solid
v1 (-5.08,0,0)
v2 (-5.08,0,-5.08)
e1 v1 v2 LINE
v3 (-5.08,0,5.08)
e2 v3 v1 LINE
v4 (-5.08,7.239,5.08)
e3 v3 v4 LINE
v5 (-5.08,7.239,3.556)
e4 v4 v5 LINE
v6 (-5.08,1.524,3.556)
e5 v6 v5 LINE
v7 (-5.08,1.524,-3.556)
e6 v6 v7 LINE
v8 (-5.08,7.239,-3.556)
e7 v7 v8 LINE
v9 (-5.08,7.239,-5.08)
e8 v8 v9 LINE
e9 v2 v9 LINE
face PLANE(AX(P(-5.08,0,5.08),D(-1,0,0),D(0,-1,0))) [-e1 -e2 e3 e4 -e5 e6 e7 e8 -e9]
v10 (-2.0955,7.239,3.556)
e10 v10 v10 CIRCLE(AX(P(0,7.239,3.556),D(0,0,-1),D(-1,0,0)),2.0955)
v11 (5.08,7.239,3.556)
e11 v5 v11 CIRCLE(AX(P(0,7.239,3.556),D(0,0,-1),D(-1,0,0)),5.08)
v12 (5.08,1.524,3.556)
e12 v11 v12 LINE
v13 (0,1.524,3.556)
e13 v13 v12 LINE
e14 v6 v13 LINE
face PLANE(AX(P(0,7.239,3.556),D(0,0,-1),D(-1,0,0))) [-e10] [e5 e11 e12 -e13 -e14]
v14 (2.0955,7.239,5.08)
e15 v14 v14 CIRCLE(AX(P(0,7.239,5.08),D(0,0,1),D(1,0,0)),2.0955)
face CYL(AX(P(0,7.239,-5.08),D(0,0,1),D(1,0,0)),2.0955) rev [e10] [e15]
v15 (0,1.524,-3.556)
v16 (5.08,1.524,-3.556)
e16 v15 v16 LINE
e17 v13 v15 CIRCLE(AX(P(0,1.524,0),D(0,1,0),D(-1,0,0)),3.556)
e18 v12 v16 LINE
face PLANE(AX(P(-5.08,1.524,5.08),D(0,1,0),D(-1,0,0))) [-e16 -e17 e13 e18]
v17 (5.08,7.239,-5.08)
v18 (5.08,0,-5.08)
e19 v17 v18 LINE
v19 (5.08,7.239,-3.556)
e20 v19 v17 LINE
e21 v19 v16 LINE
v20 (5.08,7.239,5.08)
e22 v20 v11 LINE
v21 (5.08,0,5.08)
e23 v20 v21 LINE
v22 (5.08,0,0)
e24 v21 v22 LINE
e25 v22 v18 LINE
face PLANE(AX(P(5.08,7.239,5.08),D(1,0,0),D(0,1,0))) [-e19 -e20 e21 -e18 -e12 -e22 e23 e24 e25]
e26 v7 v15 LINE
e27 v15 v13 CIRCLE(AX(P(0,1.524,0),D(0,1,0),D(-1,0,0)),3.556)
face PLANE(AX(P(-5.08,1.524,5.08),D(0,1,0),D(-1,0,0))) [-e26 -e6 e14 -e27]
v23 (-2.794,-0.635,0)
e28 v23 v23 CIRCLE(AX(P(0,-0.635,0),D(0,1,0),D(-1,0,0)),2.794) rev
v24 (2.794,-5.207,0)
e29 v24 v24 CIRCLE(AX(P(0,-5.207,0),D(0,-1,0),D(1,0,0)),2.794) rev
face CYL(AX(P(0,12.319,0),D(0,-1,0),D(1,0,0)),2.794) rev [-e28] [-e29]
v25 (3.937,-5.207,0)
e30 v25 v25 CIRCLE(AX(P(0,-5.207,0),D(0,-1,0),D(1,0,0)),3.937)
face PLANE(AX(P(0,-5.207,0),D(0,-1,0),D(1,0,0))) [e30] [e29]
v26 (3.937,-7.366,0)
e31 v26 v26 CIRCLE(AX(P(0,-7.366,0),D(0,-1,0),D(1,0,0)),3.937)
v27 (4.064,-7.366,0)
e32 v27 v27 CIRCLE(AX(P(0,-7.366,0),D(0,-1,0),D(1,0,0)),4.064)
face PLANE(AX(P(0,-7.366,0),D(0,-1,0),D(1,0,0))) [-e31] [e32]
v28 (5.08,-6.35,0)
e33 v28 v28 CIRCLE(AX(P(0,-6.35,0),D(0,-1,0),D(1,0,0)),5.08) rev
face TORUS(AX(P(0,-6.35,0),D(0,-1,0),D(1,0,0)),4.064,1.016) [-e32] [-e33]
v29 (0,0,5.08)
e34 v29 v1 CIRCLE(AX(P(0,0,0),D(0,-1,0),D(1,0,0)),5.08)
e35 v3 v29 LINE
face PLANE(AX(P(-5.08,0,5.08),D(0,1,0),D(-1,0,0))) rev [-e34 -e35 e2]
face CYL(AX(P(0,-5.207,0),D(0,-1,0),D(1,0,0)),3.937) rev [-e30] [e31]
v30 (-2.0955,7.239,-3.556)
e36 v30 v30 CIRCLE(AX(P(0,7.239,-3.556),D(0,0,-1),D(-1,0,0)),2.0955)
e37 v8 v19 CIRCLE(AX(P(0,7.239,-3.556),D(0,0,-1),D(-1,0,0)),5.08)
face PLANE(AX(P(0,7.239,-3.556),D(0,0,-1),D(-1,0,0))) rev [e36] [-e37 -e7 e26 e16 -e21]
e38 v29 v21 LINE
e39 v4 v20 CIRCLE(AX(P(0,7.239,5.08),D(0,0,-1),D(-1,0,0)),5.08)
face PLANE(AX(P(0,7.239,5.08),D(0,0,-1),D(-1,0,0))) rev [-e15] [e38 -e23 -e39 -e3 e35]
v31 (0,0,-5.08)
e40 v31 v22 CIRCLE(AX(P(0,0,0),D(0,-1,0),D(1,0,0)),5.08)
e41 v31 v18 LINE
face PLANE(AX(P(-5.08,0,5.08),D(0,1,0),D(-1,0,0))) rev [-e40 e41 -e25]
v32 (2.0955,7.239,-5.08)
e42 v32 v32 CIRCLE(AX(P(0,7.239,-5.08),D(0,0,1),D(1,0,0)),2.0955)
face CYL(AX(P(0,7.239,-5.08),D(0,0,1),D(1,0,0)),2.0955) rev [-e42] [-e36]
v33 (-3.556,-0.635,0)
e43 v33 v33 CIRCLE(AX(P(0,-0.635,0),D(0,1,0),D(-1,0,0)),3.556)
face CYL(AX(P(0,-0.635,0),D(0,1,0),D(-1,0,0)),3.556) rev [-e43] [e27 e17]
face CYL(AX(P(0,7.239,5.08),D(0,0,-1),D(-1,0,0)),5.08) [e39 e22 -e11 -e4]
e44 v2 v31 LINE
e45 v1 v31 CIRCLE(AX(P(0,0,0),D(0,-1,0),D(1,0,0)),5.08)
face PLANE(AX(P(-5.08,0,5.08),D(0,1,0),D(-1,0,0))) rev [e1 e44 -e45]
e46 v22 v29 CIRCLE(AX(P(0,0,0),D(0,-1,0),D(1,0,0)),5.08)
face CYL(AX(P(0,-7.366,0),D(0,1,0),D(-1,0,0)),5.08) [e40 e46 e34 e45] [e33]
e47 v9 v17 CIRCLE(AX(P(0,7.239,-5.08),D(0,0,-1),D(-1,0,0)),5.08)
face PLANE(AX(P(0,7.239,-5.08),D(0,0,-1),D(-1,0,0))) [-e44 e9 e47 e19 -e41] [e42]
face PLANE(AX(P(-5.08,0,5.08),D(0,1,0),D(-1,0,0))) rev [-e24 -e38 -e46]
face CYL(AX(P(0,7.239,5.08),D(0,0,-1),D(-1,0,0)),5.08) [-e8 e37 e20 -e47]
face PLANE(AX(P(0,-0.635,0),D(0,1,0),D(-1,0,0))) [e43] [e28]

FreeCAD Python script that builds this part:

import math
import FreeCAD as App
import Part
import Sketcher
Q = App.Units.Quantity


def edges_at(feature, points):
    """Names of the edges that pass closest to the given points."""
    edges = feature.Shape.Edges
    near = lambda p: min(range(len(edges)), key=lambda i: edges[i].distToShape(Part.Vertex(*p))[0])
    return sorted({f"Edge{near(p) + 1}" for p in points})


def faces_at(feature, points):
    """Names of the faces that lie closest to the given points."""
    faces = feature.Shape.Faces
    near = lambda p: min(range(len(faces)), key=lambda i: faces[i].distToShape(Part.Vertex(*p))[0])
    return sorted({f"Face{near(p) + 1}" for p in points})

doc = App.newDocument("Part")
body = doc.addObject("PartDesign::Body", "Body")

sketch1 = body.newObject("Sketcher::SketchObject", "Sketch")
sketch1.AttachmentSupport = (doc.getObject("XY_Plane"), [""])
sketch1.MapMode = "FlatFace"
sketch1.addGeometry([
    Part.LineSegment(App.Vector(-5, 0, 0), App.Vector(5, 0, 0)),
    Part.LineSegment(App.Vector(5, 0, 0), App.Vector(5, 7, 0)),
    Part.ArcOfCircle(Part.Circle(App.Vector(0, 7, 0), App.Vector(0, 0, 1), 5), math.radians(0), math.radians(180)),
    Part.LineSegment(App.Vector(-5, 7, 0), App.Vector(-5, 0, 0)),
], False)
sketch1.addConstraint([
    Sketcher.Constraint("Coincident", 0, 2, 1, 1),
    Sketcher.Constraint("Tangent", 1, 2, 2, 1),
    Sketcher.Constraint("Tangent", 2, 2, 3, 1),
    Sketcher.Constraint("Coincident", 3, 2, 0, 1),
    Sketcher.Constraint("Horizontal", 0),
    Sketcher.Constraint("Vertical", 1),
    Sketcher.Constraint("Vertical", 3),
    Sketcher.Constraint("Symmetric", 0, 2, 3, 2, -1, 1),
    Sketcher.Constraint("Radius", 2, Q("0.2 in")),
    Sketcher.Constraint("DistanceY", 1, 1, 1, 2, Q("0.285 in")),
])
pad1 = body.newObject("PartDesign::Pad", "Pad")
pad1.Profile = sketch1
pad1.Length = Q("0.4 in")
pad1.Midplane = True
doc.recompute()

thickness = body.newObject("PartDesign::Thickness", "Thickness")
thickness.Base = (pad1, faces_at(pad1, [(5.08, 3.619, 0), (0, 12.319, 0), (-5.08, 3.619, 0)]))
thickness.Value = Q("0.06 in")
thickness.Reversed = True
thickness.Join = "Intersection"

sketch2 = body.newObject("Sketcher::SketchObject", "Sketch001")
sketch2.AttachmentSupport = (doc.getObject("XY_Plane"), [""])
sketch2.MapMode = "FlatFace"
sketch2.AttachmentOffset = App.Placement(App.Vector(0, 0, 0.2 * 25.4), App.Rotation())
sketch2.addGeometry(Part.Circle(App.Vector(0, 7.2, 0), App.Vector(0, 0, 1), 2.1), False)
sketch2.addConstraint([
    Sketcher.Constraint("PointOnObject", 0, 3, -2),
    Sketcher.Constraint("Diameter", 0, Q("0.165 in")),
    Sketcher.Constraint("DistanceY", -1, 1, 0, 3, Q("0.285 in")),
])
pocket1 = body.newObject("PartDesign::Pocket", "Pocket")
pocket1.Profile = sketch2
pocket1.Type = "ThroughAll"

sketch3 = body.newObject("Sketcher::SketchObject", "Sketch002")
sketch3.AttachmentSupport = (doc.getObject("XZ_Plane"), [""])
sketch3.MapMode = "FlatFace"
sketch3.addGeometry(Part.Circle(App.Vector(0, 0, 0), App.Vector(0, 0, 1), 5), False)
sketch3.addConstraint([
    Sketcher.Constraint("Coincident", 0, 3, -1, 1),
    Sketcher.Constraint("Diameter", 0, Q("0.4 in")),
])
pad2 = body.newObject("PartDesign::Pad", "Pad001")
pad2.Profile = sketch3
pad2.Length = Q("0.29 in")

sketch4 = body.newObject("Sketcher::SketchObject", "Sketch003")
sketch4.AttachmentSupport = (doc.getObject("XZ_Plane"), [""])
sketch4.MapMode = "FlatFace"
sketch4.AttachmentOffset = App.Placement(App.Vector(0, 0, 0.29 * 25.4), App.Rotation())
sketch4.addGeometry(Part.Circle(App.Vector(0, 0, 0), App.Vector(0, 0, 1), 2.8), False)
sketch4.addConstraint([
    Sketcher.Constraint("Coincident", 0, 3, -1, 1),
    Sketcher.Constraint("Diameter", 0, Q("0.22 in")),
])
pocket2 = body.newObject("PartDesign::Pocket", "Pocket001")
pocket2.Profile = sketch4
pocket2.Type = "ThroughAll"

sketch5 = body.newObject("Sketcher::SketchObject", "Sketch004")
sketch5.AttachmentSupport = (doc.getObject("XZ_Plane"), [""])
sketch5.MapMode = "FlatFace"
sketch5.AttachmentOffset = App.Placement(App.Vector(0, 0, -0.06 * 25.4), App.Rotation())
sketch5.addGeometry(Part.Circle(App.Vector(0, 0, 0), App.Vector(0, 0, 1), 3.6), False)
sketch5.addConstraint([
    Sketcher.Constraint("Coincident", 0, 3, -1, 1),
    Sketcher.Constraint("Diameter", 0, Q("0.28 in")),
])
pocket3 = body.newObject("PartDesign::Pocket", "Pocket002")
pocket3.Profile = sketch5
pocket3.Length = Q("0.085 in")
pocket3.Reversed = True

sketch6 = body.newObject("Sketcher::SketchObject", "Sketch005")
sketch6.AttachmentSupport = (doc.getObject("XZ_Plane"), [""])
sketch6.MapMode = "FlatFace"
sketch6.AttachmentOffset = App.Placement(App.Vector(0, 0, 0.29 * 25.4), App.Rotation())
sketch6.addGeometry(Part.Circle(App.Vector(0, 0, 0), App.Vector(0, 0, 1), 3.9), False)
sketch6.addConstraint([
    Sketcher.Constraint("Coincident", 0, 3, -1, 1),
    Sketcher.Constraint("Diameter", 0, Q("0.31 in")),
])
pocket4 = body.newObject("PartDesign::Pocket", "Pocket003")
pocket4.Profile = sketch6
pocket4.Length = Q("0.085 in")
doc.recompute()

fillet = body.newObject("PartDesign::Fillet", "Fillet")
fillet.Base = (pocket4, edges_at(pocket4, [(-5.08, -7.366, 0)]))
fillet.Radius = Q("0.04 in")

doc.recompute()
